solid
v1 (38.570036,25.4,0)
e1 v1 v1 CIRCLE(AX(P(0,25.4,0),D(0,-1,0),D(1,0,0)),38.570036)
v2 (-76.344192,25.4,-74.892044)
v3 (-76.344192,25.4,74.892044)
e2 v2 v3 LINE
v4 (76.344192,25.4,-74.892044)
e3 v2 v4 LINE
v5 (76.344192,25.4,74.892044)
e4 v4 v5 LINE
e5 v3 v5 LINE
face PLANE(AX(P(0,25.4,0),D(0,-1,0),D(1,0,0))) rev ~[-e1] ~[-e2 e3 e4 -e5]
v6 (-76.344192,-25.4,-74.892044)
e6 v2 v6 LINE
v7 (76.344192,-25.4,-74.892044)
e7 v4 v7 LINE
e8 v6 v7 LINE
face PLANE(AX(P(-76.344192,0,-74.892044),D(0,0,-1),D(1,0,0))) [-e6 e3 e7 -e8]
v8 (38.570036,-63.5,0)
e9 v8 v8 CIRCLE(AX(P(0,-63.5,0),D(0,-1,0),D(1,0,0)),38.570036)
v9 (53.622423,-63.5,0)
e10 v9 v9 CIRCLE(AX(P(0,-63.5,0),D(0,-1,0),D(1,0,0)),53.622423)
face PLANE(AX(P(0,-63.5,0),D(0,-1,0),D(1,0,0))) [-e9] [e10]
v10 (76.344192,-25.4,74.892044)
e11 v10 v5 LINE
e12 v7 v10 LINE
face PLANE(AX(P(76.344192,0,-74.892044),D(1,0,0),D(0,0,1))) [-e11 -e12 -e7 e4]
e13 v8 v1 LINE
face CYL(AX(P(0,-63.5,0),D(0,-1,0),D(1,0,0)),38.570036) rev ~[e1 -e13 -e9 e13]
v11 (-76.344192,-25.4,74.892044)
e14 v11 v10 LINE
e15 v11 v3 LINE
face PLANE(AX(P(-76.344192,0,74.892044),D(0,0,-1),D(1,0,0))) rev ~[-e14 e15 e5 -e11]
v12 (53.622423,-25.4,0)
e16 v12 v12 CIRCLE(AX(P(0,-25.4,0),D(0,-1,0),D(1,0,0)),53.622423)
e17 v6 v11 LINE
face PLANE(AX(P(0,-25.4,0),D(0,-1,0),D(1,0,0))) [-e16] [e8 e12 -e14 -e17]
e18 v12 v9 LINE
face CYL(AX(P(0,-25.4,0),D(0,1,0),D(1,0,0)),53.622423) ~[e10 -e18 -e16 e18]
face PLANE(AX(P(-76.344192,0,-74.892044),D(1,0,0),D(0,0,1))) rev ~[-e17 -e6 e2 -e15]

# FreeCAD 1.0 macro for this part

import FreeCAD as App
import Part
import Sketcher
Q = App.Units.Quantity

doc = App.newDocument("Part")
body = doc.addObject("PartDesign::Body", "Body")

# Sketch on XZ plane
sketch1 = doc.addObject("Sketcher::SketchObject", "Sketch")
body.addObject(sketch1)
sketch1.AttachmentSupport = (doc.XZ_Plane, [""])
sketch1.MapMode = "FlatFace"
sketch1.addGeometry([
    Part.LineSegment(App.Vector(-76, 75, 0), App.Vector(-76, -75, 0)),
    Part.LineSegment(App.Vector(-76, -75, 0), App.Vector(76, -75, 0)),
    Part.LineSegment(App.Vector(76, -75, 0), App.Vector(76, 75, 0)),
    Part.LineSegment(App.Vector(76, 75, 0), App.Vector(-76, 75, 0)),
], False)
sketch1.addConstraint([
    Sketcher.Constraint("Coincident", 0, 2, 1, 1),
    Sketcher.Constraint("Coincident", 1, 2, 2, 1),
    Sketcher.Constraint("Coincident", 2, 2, 3, 1),
    Sketcher.Constraint("Coincident", 3, 2, 0, 1),
    Sketcher.Constraint("Vertical", 0),
    Sketcher.Constraint("Horizontal", 1),
    Sketcher.Constraint("Vertical", 2),
    Sketcher.Constraint("Horizontal", 3),
    Sketcher.Constraint("Symmetric", 0, 2, 2, 2, -1, 1),
    Sketcher.Constraint("DistanceY", 0, 2, 0, 1, Q("149.784088 mm")),
    Sketcher.Constraint("DistanceX", 1, 1, 1, 2, Q("152.688384 mm")),
])
pad1 = doc.addObject("PartDesign::Pad", "Pad")
body.addObject(pad1)
pad1.Profile = sketch1
pad1.Type = "TwoLengths"
pad1.Length = Q("1 in")
pad1.Length2 = Q("1 in")

# Sketch on XZ plane
sketch2 = doc.addObject("Sketcher::SketchObject", "Sketch001")
body.addObject(sketch2)
sketch2.AttachmentSupport = (doc.XZ_Plane, [""])
sketch2.MapMode = "FlatFace"
sketch2.AttachmentOffset = App.Placement(App.Vector(0, 0, 1 * 25.4), App.Rotation())
sketch2.addGeometry(Part.Circle(App.Vector(0, 0, 0), App.Vector(0, 0, 1), 54), False)
sketch2.addConstraint([
    Sketcher.Constraint("Coincident", 0, 3, -1, 1),
    Sketcher.Constraint("Diameter", 0, Q("107.244846 mm")),
])
pad2 = doc.addObject("PartDesign::Pad", "Pad001")
body.addObject(pad2)
pad2.Profile = sketch2
pad2.Length = Q("1.5 in")

# Sketch on XZ plane
sketch3 = doc.addObject("Sketcher::SketchObject", "Sketch002")
body.addObject(sketch3)
sketch3.AttachmentSupport = (doc.XZ_Plane, [""])
sketch3.MapMode = "FlatFace"
sketch3.AttachmentOffset = App.Placement(App.Vector(0, 0, 2.5 * 25.4), App.Rotation())
sketch3.addGeometry(Part.Circle(App.Vector(0, 0, 0), App.Vector(0, 0, 1), 39), False)
sketch3.addConstraint([
    Sketcher.Constraint("Coincident", 0, 3, -1, 1),
    Sketcher.Constraint("Diameter", 0, Q("77.140072 mm")),
])
pocket1 = doc.addObject("PartDesign::Pocket", "Pocket")
body.addObject(pocket1)
pocket1.Profile = sketch3
pocket1.Length = Q("5 in")

doc.recompute()
